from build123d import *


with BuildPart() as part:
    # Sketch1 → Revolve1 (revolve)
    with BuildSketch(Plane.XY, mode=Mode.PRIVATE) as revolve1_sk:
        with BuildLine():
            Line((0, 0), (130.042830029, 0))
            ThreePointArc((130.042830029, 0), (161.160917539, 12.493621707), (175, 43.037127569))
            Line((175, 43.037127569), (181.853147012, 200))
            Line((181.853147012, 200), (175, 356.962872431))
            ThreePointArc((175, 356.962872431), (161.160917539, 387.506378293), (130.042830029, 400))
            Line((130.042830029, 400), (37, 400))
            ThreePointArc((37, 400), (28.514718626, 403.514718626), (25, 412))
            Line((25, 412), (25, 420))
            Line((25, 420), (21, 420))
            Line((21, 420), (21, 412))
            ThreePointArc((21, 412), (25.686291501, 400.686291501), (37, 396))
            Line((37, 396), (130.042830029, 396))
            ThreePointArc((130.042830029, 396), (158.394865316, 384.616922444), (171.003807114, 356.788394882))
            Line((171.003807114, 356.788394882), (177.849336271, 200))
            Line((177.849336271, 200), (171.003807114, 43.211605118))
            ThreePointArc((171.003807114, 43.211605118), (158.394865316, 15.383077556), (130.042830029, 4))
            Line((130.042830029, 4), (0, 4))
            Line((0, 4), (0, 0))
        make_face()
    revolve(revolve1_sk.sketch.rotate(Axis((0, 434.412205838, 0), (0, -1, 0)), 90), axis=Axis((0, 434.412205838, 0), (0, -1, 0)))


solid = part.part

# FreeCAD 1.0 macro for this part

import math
import FreeCAD as App
import Part
import Sketcher
Q = App.Units.Quantity

doc = App.newDocument("Part")
body = doc.addObject("PartDesign::Body", "Body")

sketch1 = body.newObject("Sketcher::SketchObject", "Sketch")
sketch1.AttachmentSupport = (doc.getObject("XY_Plane"), [""])
sketch1.MapMode = "FlatFace"
sketch1.addGeometry([
    Part.LineSegment(App.Vector(0, 0, 0), App.Vector(130, 0, 0)),
    Part.ArcOfCircle(Part.Circle(App.Vector(130, 45, 0), App.Vector(0, 0, 1), 45), math.radians(-90), math.radians(-2)),
    Part.LineSegment(App.Vector(175, 43, 0), App.Vector(181.9, 200, 0)),
    Part.LineSegment(App.Vector(181.9, 200, 0), App.Vector(175, 357, 0)),
    Part.ArcOfCircle(Part.Circle(App.Vector(130, 355, 0), App.Vector(0, 0, 1), 45), math.radians(2), math.radians(90)),
    Part.LineSegment(App.Vector(130, 400, 0), App.Vector(37, 400, 0)),
    Part.ArcOfCircle(Part.Circle(App.Vector(37, 412, 0), App.Vector(0, 0, 1), 12), math.radians(-180), math.radians(-90)),
    Part.LineSegment(App.Vector(25, 412, 0), App.Vector(25, 420, 0)),
    Part.LineSegment(App.Vector(25, 420, 0), App.Vector(21, 420, 0)),
    Part.LineSegment(App.Vector(21, 420, 0), App.Vector(21, 412, 0)),
    Part.ArcOfCircle(Part.Circle(App.Vector(37, 412, 0), App.Vector(0, 0, 1), 16), math.radians(180), math.radians(270)),
    Part.LineSegment(App.Vector(37, 396, 0), App.Vector(130, 396, 0)),
    Part.ArcOfCircle(Part.Circle(App.Vector(130, 355, 0), App.Vector(0, 0, 1), 41), math.radians(3), math.radians(90)),
    Part.LineSegment(App.Vector(171, 356.8, 0), App.Vector(177.8, 200, 0)),
    Part.LineSegment(App.Vector(177.8, 200, 0), App.Vector(171, 43.2, 0)),
    Part.ArcOfCircle(Part.Circle(App.Vector(130, 45, 0), App.Vector(0, 0, 1), 41), math.radians(-90), math.radians(-3)),
    Part.LineSegment(App.Vector(130, 4, 0), App.Vector(0, 4, 0)),
    Part.LineSegment(App.Vector(0, 4, 0), App.Vector(0, 0, 0)),
], False)
sketch1.addConstraint([
    Sketcher.Constraint("Tangent", 0, 2, 1, 1),
    Sketcher.Constraint("Tangent", 1, 2, 2, 1),
    Sketcher.Constraint("Coincident", 2, 2, 3, 1),
    Sketcher.Constraint("Tangent", 3, 2, 4, 1),
    Sketcher.Constraint("Tangent", 4, 2, 5, 1),
    Sketcher.Constraint("Tangent", 5, 2, 6, 2),
    Sketcher.Constraint("Tangent", 6, 1, 7, 1),
    Sketcher.Constraint("Coincident", 7, 2, 8, 1),
    Sketcher.Constraint("Coincident", 8, 2, 9, 1),
    Sketcher.Constraint("Tangent", 9, 2, 10, 1),
    Sketcher.Constraint("Tangent", 10, 2, 11, 1),
    Sketcher.Constraint("Tangent", 11, 2, 12, 2),
    Sketcher.Constraint("Tangent", 12, 1, 13, 1),
    Sketcher.Constraint("Coincident", 13, 2, 14, 1),
    Sketcher.Constraint("Tangent", 14, 2, 15, 2),
    Sketcher.Constraint("Tangent", 15, 1, 16, 1),
    Sketcher.Constraint("Coincident", 16, 2, 17, 1),
    Sketcher.Constraint("Coincident", 17, 2, 0, 1),
    Sketcher.Constraint("Horizontal", 0),
    Sketcher.Constraint("Horizontal", 5),
    Sketcher.Constraint("Vertical", 7),
    Sketcher.Constraint("Horizontal", 8),
    Sketcher.Constraint("Vertical", 9),
    Sketcher.Constraint("Horizontal", 11),
    Sketcher.Constraint("Horizontal", 16),
    Sketcher.Constraint("Vertical", 17),
    Sketcher.Constraint("Coincident", 17, 2, -1, 1),
    Sketcher.Constraint("Coincident", 10, 3, 6, 3),
    Sketcher.Constraint("Coincident", 12, 3, 4, 3),
    Sketcher.Constraint("Coincident", 15, 3, 1, 3),
    Sketcher.Constraint("Equal", 1, 4),
    Sketcher.Constraint("Equal", 12, 15),
    Sketcher.Constraint("Parallel", 3, 13),
    Sketcher.Constraint("Parallel", 2, 14),
    Sketcher.Constraint("Horizontal", 2, 2, 13, 2),
    Sketcher.Constraint("Vertical", 1, 3, 4, 3),
    Sketcher.Constraint("Radius", 1, Q("45 mm")),
    Sketcher.Constraint("Radius", 6, Q("12 mm")),
    Sketcher.Constraint("Radius", 10, Q("16 mm")),
    Sketcher.Constraint("DistanceY", 7, 1, 7, 2, Q("8 mm")),
    Sketcher.Constraint("DistanceY", -1, 1, 4, 3, Q("355 mm")),
    Sketcher.Constraint("DistanceX", -1, 1, 6, 3, Q("37 mm")),
    Sketcher.Constraint("DistanceX", -1, 1, 1, 2, Q("175 mm")),
    Sketcher.Constraint("Angle", 2, Q("87.5 deg")),
])
revolution = body.newObject("PartDesign::Revolution", "Revolution")
revolution.Profile = sketch1
revolution.ReferenceAxis = (sketch1, ["V_Axis"])
revolution.Angle = 360

doc.recompute()
